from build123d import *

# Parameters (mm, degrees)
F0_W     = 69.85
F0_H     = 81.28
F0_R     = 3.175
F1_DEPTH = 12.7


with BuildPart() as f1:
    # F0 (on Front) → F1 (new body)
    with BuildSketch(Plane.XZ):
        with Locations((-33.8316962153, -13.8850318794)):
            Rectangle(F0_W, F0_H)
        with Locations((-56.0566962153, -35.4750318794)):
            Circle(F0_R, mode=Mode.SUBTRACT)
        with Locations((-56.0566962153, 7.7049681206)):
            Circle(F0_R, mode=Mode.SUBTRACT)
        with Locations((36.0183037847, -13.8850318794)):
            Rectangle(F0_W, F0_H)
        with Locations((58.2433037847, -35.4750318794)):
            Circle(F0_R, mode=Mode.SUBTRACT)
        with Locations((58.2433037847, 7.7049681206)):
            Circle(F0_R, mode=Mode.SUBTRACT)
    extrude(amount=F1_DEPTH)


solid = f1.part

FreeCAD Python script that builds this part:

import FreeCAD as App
import Part
import Sketcher

V = App.Vector
Q = App.Units.Quantity

doc = App.newDocument("Part")
body = doc.addObject("PartDesign::Body", "Body")

# Sketch on XZ plane
sketch1 = body.newObject("Sketcher::SketchObject", "Sketch")
sketch1.AttachmentSupport = (doc.getObject("XZ_Plane"), [""])
sketch1.MapMode = "FlatFace"
sketch1.addGeometry(Part.LineSegment(V(-68.756696, 26.754968, 0), V(-68.756696, -54.525032, 0)), False)
sketch1.addGeometry(Part.LineSegment(V(-68.756696, -54.525032, 0), V(70.943304, -54.525032, 0)), False)
sketch1.addGeometry(Part.LineSegment(V(70.943304, -54.525032, 0), V(70.943304, 26.754968, 0)), False)
sketch1.addGeometry(Part.LineSegment(V(70.943304, 26.754968, 0), V(-68.756696, 26.754968, 0)), False)
sketch1.addGeometry(Part.Circle(V(-56.056696, -35.475032, 0), V(0, 0, 1), 3.175), False)
sketch1.addGeometry(Part.Circle(V(58.243304, -35.475032, 0), V(0, 0, 1), 3.175), False)
sketch1.addGeometry(Part.Circle(V(-56.056696, 7.704968, 0), V(0, 0, 1), 3.175), False)
sketch1.addGeometry(Part.Circle(V(58.243304, 7.704968, 0), V(0, 0, 1), 3.175), False)
sketch1.addConstraint(Sketcher.Constraint("Coincident", 0, 2, 1, 1))
sketch1.addConstraint(Sketcher.Constraint("Coincident", 1, 2, 2, 1))
sketch1.addConstraint(Sketcher.Constraint("Coincident", 2, 2, 3, 1))
sketch1.addConstraint(Sketcher.Constraint("Coincident", 3, 2, 0, 1))
sketch1.addConstraint(Sketcher.Constraint("Vertical", 0))
sketch1.addConstraint(Sketcher.Constraint("Horizontal", 1))
sketch1.addConstraint(Sketcher.Constraint("Vertical", 2))
sketch1.addConstraint(Sketcher.Constraint("Horizontal", 3))
sketch1.addConstraint(Sketcher.Constraint("Equal", 4, 5))
sketch1.addConstraint(Sketcher.Constraint("Equal", 5, 6))
sketch1.addConstraint(Sketcher.Constraint("Equal", 6, 7))
sketch1.addConstraint(Sketcher.Constraint("Horizontal", 4, 3, 5, 3))
sketch1.addConstraint(Sketcher.Constraint("Horizontal", 6, 3, 7, 3))
sketch1.addConstraint(Sketcher.Constraint("Vertical", 4, 3, 6, 3))
sketch1.addConstraint(Sketcher.Constraint("Vertical", 5, 3, 7, 3))
sketch1.addConstraint(Sketcher.Constraint("Diameter", 4, Q("0.25 in")))
sketch1.addConstraint(Sketcher.Constraint("DistanceX", 1, 1, 1, 2, Q("5.5 in")))
sketch1.addConstraint(Sketcher.Constraint("DistanceY", 0, 2, 0, 1, Q("3.2 in")))
sketch1.addConstraint(Sketcher.Constraint("DistanceX", 0, 2, 5, 3, Q("5 in")))
sketch1.addConstraint(Sketcher.Constraint("DistanceX", 4, 3, 1, 2, Q("5 in")))
sketch1.addConstraint(Sketcher.Constraint("DistanceY", 4, 3, 6, 3, Q("1.7 in")))
sketch1.addConstraint(Sketcher.Constraint("DistanceY", 0, 2, 4, 3, Q("0.75 in")))
sketch1.addConstraint(Sketcher.Constraint("DistanceY", 4, 3, -1, 1, Q("35.475032 mm")))
sketch1.addConstraint(Sketcher.Constraint("DistanceX", 4, 3, -1, 1, Q("56.056696 mm")))
pad1 = body.newObject("PartDesign::Pad", "Pad")
pad1.Profile = sketch1
pad1.Length = Q("0.5 in")

doc.recompute()
